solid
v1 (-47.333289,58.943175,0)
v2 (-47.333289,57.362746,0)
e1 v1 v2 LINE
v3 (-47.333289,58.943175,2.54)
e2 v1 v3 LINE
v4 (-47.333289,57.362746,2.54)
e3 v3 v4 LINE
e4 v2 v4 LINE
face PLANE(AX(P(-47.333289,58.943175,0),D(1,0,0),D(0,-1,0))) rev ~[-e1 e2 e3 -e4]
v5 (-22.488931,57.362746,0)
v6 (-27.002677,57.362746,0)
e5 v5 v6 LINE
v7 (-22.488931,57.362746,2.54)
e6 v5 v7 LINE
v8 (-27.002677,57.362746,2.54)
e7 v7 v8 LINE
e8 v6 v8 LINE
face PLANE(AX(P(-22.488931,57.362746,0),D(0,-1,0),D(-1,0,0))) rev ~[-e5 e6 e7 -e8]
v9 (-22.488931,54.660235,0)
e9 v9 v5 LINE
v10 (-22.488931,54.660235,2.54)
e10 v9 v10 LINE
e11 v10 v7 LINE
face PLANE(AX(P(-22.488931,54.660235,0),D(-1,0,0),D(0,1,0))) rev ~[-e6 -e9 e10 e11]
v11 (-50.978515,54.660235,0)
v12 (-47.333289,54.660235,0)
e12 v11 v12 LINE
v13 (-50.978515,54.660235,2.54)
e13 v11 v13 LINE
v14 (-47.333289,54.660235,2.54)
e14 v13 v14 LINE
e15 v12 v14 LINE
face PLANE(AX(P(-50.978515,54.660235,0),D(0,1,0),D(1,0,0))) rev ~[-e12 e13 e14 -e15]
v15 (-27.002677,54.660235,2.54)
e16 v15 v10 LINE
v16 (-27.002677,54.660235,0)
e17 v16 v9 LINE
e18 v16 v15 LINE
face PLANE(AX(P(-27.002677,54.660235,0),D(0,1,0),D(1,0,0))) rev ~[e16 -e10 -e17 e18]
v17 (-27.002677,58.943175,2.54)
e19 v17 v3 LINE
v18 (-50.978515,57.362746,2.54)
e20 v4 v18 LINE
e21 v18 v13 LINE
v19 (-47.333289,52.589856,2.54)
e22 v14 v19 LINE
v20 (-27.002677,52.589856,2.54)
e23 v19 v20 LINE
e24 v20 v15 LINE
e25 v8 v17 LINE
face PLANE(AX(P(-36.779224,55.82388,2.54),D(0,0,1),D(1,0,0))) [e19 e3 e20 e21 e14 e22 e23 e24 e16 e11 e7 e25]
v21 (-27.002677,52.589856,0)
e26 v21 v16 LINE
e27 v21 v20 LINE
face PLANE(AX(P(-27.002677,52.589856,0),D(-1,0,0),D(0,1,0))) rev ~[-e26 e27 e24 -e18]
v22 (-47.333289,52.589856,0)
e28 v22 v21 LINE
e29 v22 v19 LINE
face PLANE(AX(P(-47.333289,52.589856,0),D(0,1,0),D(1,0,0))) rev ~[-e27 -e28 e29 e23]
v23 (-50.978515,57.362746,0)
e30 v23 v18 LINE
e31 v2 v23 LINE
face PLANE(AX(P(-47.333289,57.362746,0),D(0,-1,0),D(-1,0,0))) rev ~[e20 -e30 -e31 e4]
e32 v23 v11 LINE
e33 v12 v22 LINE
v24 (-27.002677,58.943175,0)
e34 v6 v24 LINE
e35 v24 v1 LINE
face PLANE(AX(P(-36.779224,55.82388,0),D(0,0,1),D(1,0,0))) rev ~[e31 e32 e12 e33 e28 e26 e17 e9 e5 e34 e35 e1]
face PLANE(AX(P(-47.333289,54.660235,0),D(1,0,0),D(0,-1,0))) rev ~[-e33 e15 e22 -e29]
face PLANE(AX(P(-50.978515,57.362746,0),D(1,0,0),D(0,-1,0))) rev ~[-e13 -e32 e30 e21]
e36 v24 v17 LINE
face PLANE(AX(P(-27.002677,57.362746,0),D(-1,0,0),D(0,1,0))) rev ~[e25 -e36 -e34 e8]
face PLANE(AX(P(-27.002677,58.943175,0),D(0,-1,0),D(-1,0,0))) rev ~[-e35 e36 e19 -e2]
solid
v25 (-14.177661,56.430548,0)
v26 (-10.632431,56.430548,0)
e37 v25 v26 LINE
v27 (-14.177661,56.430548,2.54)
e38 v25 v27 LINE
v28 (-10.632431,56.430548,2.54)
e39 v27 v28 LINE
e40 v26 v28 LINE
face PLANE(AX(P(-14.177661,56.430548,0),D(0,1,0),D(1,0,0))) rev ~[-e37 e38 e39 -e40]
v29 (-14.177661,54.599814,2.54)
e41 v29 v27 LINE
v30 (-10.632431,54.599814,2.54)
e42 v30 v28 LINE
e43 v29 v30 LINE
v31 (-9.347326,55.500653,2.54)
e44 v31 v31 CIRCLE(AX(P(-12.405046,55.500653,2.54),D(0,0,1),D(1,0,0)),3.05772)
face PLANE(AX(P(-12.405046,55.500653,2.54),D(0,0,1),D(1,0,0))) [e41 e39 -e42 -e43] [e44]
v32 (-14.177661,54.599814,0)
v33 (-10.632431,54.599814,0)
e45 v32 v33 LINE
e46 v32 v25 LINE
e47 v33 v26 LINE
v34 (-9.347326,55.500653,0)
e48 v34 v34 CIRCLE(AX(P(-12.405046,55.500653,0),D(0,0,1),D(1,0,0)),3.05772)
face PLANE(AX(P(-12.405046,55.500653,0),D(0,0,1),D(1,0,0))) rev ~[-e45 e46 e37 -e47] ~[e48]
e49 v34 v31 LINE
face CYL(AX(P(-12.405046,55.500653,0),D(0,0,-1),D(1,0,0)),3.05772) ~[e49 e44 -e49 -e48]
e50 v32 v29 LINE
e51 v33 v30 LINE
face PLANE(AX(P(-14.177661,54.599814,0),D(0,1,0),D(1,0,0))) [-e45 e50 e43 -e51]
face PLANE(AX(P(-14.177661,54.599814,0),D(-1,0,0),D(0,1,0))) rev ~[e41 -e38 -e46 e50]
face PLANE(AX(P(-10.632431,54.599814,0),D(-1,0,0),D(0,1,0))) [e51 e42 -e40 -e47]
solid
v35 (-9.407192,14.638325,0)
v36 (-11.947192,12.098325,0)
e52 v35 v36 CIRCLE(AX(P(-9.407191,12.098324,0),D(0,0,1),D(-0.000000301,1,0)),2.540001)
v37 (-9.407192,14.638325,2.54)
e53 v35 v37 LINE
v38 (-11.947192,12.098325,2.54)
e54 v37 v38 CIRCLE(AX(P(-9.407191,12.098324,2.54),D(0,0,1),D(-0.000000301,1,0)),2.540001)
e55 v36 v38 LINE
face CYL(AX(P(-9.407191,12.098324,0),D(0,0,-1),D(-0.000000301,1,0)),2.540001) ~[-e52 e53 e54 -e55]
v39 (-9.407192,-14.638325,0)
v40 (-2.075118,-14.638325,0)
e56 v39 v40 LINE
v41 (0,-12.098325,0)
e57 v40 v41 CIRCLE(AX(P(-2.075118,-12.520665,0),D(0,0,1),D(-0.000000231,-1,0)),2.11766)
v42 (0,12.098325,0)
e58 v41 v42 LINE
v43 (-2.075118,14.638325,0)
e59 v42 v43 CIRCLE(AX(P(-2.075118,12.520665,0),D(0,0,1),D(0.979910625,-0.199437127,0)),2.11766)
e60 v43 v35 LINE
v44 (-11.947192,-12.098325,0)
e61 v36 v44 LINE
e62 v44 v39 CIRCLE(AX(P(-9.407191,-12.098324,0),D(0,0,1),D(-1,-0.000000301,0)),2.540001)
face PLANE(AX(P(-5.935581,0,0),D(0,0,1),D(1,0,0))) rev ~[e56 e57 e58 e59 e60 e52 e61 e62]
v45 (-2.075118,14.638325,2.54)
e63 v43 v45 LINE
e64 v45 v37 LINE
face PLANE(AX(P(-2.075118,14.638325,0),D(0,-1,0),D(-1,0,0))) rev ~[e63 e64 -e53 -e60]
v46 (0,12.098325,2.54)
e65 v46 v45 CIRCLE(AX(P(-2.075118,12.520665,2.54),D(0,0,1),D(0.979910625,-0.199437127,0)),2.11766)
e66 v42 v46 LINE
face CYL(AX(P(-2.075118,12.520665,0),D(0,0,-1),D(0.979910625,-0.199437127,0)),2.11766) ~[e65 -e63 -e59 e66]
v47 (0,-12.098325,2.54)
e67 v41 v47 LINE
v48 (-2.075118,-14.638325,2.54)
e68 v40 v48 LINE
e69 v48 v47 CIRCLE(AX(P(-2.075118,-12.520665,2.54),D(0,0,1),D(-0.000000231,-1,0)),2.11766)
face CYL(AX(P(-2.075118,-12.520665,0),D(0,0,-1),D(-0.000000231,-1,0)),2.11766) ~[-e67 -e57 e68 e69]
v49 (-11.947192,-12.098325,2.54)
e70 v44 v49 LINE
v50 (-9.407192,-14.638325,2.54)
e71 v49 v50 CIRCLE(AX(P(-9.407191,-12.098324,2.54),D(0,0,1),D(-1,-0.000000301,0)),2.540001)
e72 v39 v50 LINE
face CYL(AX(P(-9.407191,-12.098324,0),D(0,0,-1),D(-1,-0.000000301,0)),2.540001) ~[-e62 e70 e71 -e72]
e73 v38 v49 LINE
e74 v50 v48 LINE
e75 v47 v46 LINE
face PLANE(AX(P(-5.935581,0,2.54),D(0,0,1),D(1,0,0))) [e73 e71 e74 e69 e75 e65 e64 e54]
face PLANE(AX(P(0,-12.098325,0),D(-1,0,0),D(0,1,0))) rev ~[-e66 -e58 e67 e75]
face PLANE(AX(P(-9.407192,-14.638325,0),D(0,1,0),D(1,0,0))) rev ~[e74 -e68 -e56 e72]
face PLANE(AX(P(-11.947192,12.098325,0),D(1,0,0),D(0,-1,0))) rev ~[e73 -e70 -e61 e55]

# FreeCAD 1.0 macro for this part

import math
import FreeCAD as App
import Part
import Sketcher
Q = App.Units.Quantity


def add_polygon(sketch, points):
    """Adds a closed chain of lines whose ends are joined by coincident constraints."""
    first, n = sketch.GeometryCount, len(points)
    for a, b in zip(points, points[1:] + points[:1]):
        sketch.addGeometry(Part.LineSegment(App.Vector(*a, 0), App.Vector(*b, 0)), False)
    for i in range(n):
        sketch.addConstraint(Sketcher.Constraint("Coincident", first + i, 2, first + (i + 1) % n, 1))

doc = App.newDocument("Part")
body = doc.addObject("PartDesign::Body", "Body")
body.AllowCompound = True

sketch1 = body.newObject("Sketcher::SketchObject", "Sketch")
sketch1.AttachmentSupport = (doc.getObject("XY_Plane"), [""])
sketch1.MapMode = "FlatFace"
sketch1.addGeometry(Part.ArcOfCircle(Part.Circle(App.Vector(-2.1, 12.5, 0), App.Vector(0, 0, 1), 2.1), math.radians(-12), math.radians(90)), False)
sketch1.addGeometry(Part.LineSegment(App.Vector(-2.1, 14.6, 0), App.Vector(-9.4, 14.6, 0)), False)
sketch1.addGeometry(Part.ArcOfCircle(Part.Circle(App.Vector(-9.4, 12.1, 0), App.Vector(0, 0, 1), 2.5), math.radians(90), math.radians(180)), False)
sketch1.addGeometry(Part.LineSegment(App.Vector(-11.9, 12.1, 0), App.Vector(-11.9, -12.1, 0)), False)
sketch1.addGeometry(Part.ArcOfCircle(Part.Circle(App.Vector(-9.4, -12.1, 0), App.Vector(0, 0, 1), 2.5), math.radians(-180), math.radians(-90)), False)
sketch1.addGeometry(Part.LineSegment(App.Vector(-9.4, -14.6, 0), App.Vector(-2.1, -14.6, 0)), False)
sketch1.addGeometry(Part.ArcOfCircle(Part.Circle(App.Vector(-2.1, -12.5, 0), App.Vector(0, 0, 1), 2.1), math.radians(-90), math.radians(12)), False)
sketch1.addGeometry(Part.LineSegment(App.Vector(0, -12.1, 0), App.Vector(0, 12.1, 0)), False)
add_polygon(sketch1, [(-27, 58.9), (-47.3, 58.9), (-47.3, 57.4), (-51, 57.4), (-51, 54.7), (-47.3, 54.7), (-47.3, 52.6), (-27, 52.6), (-27, 54.7), (-22.5, 54.7), (-22.5, 57.4), (-27, 57.4)])
sketch1.addGeometry(Part.Circle(App.Vector(-12.4, 55.5, 0), App.Vector(0, 0, 1), 3.1), False)
add_polygon(sketch1, [(-10.6, 54.6), (-14.2, 54.6), (-14.2, 56.4), (-10.6, 56.4)])
sketch1.addConstraint([
    Sketcher.Constraint("Tangent", 0, 2, 1, 1),
    Sketcher.Constraint("Tangent", 1, 2, 2, 1),
    Sketcher.Constraint("Tangent", 2, 2, 3, 1),
    Sketcher.Constraint("Tangent", 3, 2, 4, 1),
    Sketcher.Constraint("Tangent", 4, 2, 5, 1),
    Sketcher.Constraint("Tangent", 5, 2, 6, 1),
    Sketcher.Constraint("Coincident", 6, 2, 7, 1),
    Sketcher.Constraint("Coincident", 7, 2, 0, 1),
    Sketcher.Constraint("Horizontal", 1),
    Sketcher.Constraint("Vertical", 3),
    Sketcher.Constraint("Horizontal", 5),
    Sketcher.Constraint("Vertical", 7),
    Sketcher.Constraint("Horizontal", 8),
    Sketcher.Constraint("Vertical", 9),
    Sketcher.Constraint("Horizontal", 10),
    Sketcher.Constraint("Vertical", 11),
    Sketcher.Constraint("Horizontal", 12),
    Sketcher.Constraint("Vertical", 13),
    Sketcher.Constraint("Horizontal", 14),
    Sketcher.Constraint("Vertical", 15),
    Sketcher.Constraint("Horizontal", 16),
    Sketcher.Constraint("Vertical", 17),
    Sketcher.Constraint("Horizontal", 18),
    Sketcher.Constraint("Vertical", 19),
    Sketcher.Constraint("Horizontal", 21),
    Sketcher.Constraint("Vertical", 22),
    Sketcher.Constraint("Horizontal", 23),
    Sketcher.Constraint("Vertical", 24),
    Sketcher.Constraint("Equal", 2, 4),
    Sketcher.Constraint("Equal", 0, 6),
    Sketcher.Constraint("Symmetric", 6, 2, 7, 2, -1, 1),
    Sketcher.Constraint("Horizontal", 3, 2, 6, 2),
    Sketcher.Constraint("Horizontal", 2, 2, 7, 2),
    Sketcher.Constraint("Horizontal", 12, 2, 15, 2),
    Sketcher.Constraint("Horizontal", 10, 2, 17, 2),
    Sketcher.Constraint("Vertical", 9, 2, 12, 2),
    Sketcher.Constraint("Vertical", 15, 2, 18, 2),
    Sketcher.Constraint("Radius", 2, Q("0.1 in")),
    Sketcher.Constraint("Diameter", 20, 6.11544),
    Sketcher.Constraint("Radius", 0, 2.11766),
    Sketcher.Constraint("DistanceX", 21, 2, 21, 1, 3.54523),
    Sketcher.Constraint("DistanceY", 3, 2, 3, 1, 24.19665),
    Sketcher.Constraint("DistanceY", 9, 2, 9, 1, 1.580429),
    Sketcher.Constraint("DistanceY", 11, 2, 11, 1, 2.702511),
    Sketcher.Constraint("DistanceY", 13, 2, 13, 1, 2.070379),
    Sketcher.Constraint("DistanceX", 17, 2, 23, 2, 11.8565),
    Sketcher.Constraint("DistanceX", 1, 2, 1, 1, 7.332074),
    Sketcher.Constraint("DistanceX", 8, 2, 8, 1, 20.330612),
    Sketcher.Constraint("DistanceX", 10, 2, 10, 1, 3.645226),
    Sketcher.Constraint("DistanceX", 16, 1, 16, 2, 4.513746),
    Sketcher.Constraint("DistanceY", 22, 1, 22, 2, 1.830734),
    Sketcher.Constraint("DistanceX", 8, 2, -1, 1, 47.333289),
    Sketcher.Constraint("DistanceY", -1, 1, 22, 2, 56.430548),
    Sketcher.Constraint("DistanceY", 2, 3, 20, 3, 43.402329),
    Sketcher.Constraint("DistanceX", 20, 3, 0, 3, 10.329928),
    Sketcher.Constraint("DistanceY", 20, 3, 8, 2, 3.442522),
])
pad1 = body.newObject("PartDesign::Pad", "Pad")
pad1.Profile = sketch1
pad1.Length = Q("0.1 in")

doc.recompute()
